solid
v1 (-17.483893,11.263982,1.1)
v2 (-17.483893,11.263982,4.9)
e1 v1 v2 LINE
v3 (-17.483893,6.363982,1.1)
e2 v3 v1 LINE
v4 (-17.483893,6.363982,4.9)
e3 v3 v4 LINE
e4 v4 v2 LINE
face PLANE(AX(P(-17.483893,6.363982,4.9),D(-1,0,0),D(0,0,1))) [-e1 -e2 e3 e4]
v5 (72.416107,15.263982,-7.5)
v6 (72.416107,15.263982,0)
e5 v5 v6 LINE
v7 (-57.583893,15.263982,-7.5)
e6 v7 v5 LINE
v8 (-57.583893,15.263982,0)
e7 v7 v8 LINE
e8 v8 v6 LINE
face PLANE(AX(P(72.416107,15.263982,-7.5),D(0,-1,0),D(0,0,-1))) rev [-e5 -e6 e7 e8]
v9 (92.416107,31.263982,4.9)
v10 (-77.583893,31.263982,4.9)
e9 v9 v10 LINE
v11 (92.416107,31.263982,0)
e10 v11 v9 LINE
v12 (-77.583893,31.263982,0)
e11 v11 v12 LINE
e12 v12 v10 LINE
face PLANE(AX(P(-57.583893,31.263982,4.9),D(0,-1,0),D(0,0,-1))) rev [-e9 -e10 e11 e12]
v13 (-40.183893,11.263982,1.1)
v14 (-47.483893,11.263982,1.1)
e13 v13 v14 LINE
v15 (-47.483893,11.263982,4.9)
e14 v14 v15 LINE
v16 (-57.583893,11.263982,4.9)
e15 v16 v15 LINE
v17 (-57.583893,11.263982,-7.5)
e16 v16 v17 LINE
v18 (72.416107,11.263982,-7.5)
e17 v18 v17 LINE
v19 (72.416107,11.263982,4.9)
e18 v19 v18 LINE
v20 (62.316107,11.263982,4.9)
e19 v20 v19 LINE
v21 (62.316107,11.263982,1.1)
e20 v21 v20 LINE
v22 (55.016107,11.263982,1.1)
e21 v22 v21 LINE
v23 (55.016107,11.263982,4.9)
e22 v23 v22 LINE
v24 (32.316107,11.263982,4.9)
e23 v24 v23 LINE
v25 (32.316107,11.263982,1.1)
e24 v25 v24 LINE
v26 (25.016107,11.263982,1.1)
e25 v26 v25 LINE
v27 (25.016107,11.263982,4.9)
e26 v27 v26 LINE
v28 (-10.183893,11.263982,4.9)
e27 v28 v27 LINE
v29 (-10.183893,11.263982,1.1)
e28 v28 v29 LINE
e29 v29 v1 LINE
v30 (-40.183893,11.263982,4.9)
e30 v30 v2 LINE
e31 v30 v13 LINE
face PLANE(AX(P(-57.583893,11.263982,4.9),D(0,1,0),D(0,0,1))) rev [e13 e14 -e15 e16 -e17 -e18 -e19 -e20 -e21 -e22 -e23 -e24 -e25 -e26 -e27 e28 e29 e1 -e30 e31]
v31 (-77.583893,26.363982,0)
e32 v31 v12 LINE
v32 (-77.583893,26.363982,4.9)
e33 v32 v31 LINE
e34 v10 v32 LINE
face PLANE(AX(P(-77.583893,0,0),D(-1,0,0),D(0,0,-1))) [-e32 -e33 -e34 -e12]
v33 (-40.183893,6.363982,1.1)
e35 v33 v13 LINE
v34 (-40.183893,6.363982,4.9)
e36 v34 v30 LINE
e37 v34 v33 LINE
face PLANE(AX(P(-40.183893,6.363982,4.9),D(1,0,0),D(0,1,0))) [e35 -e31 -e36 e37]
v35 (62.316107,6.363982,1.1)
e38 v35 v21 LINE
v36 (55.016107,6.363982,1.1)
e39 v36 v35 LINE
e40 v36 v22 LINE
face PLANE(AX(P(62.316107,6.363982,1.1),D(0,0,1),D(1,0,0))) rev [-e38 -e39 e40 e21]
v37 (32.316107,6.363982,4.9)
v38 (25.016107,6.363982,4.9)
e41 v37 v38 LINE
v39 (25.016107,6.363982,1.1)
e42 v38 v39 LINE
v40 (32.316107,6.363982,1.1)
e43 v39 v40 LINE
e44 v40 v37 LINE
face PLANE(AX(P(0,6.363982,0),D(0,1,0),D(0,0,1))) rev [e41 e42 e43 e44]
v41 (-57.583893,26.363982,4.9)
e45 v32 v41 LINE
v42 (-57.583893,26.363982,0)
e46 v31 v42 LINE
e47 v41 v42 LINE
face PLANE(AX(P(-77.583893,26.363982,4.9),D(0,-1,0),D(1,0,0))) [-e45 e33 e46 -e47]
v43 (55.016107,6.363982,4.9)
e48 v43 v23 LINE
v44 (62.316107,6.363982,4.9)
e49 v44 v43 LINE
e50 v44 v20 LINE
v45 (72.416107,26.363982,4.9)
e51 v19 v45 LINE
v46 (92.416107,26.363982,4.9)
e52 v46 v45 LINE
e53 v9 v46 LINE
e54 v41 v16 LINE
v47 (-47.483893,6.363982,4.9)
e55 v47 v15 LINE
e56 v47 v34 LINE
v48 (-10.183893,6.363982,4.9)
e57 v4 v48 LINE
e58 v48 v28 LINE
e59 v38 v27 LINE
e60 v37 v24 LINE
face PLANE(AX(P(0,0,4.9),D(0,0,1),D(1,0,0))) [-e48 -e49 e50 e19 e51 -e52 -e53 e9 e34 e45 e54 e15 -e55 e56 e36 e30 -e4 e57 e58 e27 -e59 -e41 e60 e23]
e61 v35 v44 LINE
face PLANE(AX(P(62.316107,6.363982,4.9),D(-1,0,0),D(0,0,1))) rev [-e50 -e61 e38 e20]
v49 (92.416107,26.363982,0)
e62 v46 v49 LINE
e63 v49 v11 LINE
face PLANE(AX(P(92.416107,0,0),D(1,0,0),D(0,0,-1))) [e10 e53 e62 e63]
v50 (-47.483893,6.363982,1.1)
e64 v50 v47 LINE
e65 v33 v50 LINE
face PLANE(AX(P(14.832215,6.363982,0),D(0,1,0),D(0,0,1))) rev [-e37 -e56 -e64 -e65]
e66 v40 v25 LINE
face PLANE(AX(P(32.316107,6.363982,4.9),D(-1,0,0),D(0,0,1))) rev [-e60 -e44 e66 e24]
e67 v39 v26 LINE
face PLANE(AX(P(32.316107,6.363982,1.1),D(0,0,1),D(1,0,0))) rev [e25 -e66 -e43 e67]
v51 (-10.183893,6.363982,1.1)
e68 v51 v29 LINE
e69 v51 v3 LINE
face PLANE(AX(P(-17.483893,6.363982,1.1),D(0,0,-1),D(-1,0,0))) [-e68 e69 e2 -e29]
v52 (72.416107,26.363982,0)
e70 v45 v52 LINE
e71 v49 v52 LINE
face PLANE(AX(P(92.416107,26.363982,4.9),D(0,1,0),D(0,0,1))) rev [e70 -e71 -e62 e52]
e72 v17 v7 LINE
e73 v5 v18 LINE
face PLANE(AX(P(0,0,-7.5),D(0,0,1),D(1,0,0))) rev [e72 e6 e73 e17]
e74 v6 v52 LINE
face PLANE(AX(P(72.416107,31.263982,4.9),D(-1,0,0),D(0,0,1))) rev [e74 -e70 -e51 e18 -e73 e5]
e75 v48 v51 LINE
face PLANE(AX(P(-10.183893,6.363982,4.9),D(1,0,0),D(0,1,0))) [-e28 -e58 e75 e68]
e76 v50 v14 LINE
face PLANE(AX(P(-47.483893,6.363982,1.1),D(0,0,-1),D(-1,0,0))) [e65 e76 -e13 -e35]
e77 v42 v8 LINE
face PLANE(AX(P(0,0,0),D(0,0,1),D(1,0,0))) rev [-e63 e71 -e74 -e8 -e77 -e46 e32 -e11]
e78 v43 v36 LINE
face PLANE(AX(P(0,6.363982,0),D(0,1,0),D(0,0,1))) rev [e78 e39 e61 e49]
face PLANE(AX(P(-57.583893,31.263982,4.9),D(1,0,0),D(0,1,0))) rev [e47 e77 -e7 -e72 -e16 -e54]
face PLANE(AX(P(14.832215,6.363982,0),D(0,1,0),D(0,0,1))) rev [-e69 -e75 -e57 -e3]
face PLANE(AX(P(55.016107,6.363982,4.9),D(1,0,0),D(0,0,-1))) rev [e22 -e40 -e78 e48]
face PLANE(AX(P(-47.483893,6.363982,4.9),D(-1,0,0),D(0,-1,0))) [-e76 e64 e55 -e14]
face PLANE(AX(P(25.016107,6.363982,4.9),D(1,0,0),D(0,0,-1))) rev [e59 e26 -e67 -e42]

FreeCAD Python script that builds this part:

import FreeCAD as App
import Part
import Sketcher

V = App.Vector
Q = App.Units.Quantity


def add_polygon(sketch, points):
    """Adds a closed chain of lines whose ends are joined by coincident constraints."""
    first, n = sketch.GeometryCount, len(points)
    for a, b in zip(points, points[1:] + points[:1]):
        sketch.addGeometry(Part.LineSegment(App.Vector(*a, 0), App.Vector(*b, 0)), False)
    for i in range(n):
        sketch.addConstraint(Sketcher.Constraint("Coincident", first + i, 2, first + (i + 1) % n, 1))

doc = App.newDocument("Part")
params = doc.addObject("Spreadsheet::Sheet", "Params")
for row, (alias, value) in enumerate([
    ("sketch1_width", "130 mm"),
    ("sketch1_height", "20 mm"),
    ("pad1_length", "4.9 mm"),
    ("sketch2_width", "4.9 mm"),
    ("pad2_length", "20 mm"),
    ("sketch3_width", "130 mm"),
    ("sketch3_height", "4 mm"),
    ("pad3_length", "7.5 mm"),
    ("sketch4_width", "7.3 mm"),
    ("sketch4_height", "3.8 mm"),
    ("pad4_length", "4.9 mm"),
    ("sketch5_width", "7.3 mm"),
    ("sketch5_height", "3.8 mm"),
    ("pad5_length", "4.9 mm"),
], start=1):
    params.set(f"A{row}", alias)
    params.set(f"B{row}", "=" + value)
    params.setAlias(f"B{row}", alias)

body = doc.addObject("PartDesign::Body", "Body")

# Sketch on XY plane
sketch1 = doc.addObject("Sketcher::SketchObject", "Sketch")
body.addObject(sketch1)
sketch1.AttachmentSupport = (doc.XY_Plane, [""])
sketch1.MapMode = "FlatFace"
add_polygon(sketch1, [(-57.583893, 31.263982), (-57.583893, 11.263982), (72.416107, 11.263982), (72.416107, 31.263982)])  # lines 0-3
sketch1.addConstraint(Sketcher.Constraint("Vertical", 0))
sketch1.addConstraint(Sketcher.Constraint("Horizontal", 1))
sketch1.addConstraint(Sketcher.Constraint("Vertical", 2))
sketch1.addConstraint(Sketcher.Constraint("Horizontal", 3))
sketch1.addConstraint(Sketcher.Constraint("DistanceX", 1, 1, 1, 2, Q("130 mm")))
sketch1.addConstraint(Sketcher.Constraint("DistanceY", 0, 2, 0, 1, Q("20 mm")))
sketch1.addConstraint(Sketcher.Constraint("DistanceX", 0, 2, -1, 1, Q("57.583893 mm")))
sketch1.addConstraint(Sketcher.Constraint("DistanceY", -1, 1, 0, 2, Q("11.263982 mm")))
sketch1.setExpression("Constraints[8]", "Params.sketch1_width")
sketch1.setExpression("Constraints[9]", "Params.sketch1_height")
pad1 = doc.addObject("PartDesign::Pad", "Pad")
body.addObject(pad1)
pad1.Profile = sketch1
pad1.setExpression("Length", "Params.pad1_length")

# Sketch on YZ plane
sketch2 = doc.addObject("Sketcher::SketchObject", "Sketch001")
body.addObject(sketch2)
sketch2.AttachmentSupport = (doc.YZ_Plane, [""])
sketch2.MapMode = "FlatFace"
sketch2.AttachmentOffset = App.Placement(V(0, 0, 72.416107), App.Rotation())
add_polygon(sketch2, [(31.263982, 4.9), (26.363982, 4.9), (26.363982, 0), (31.263982, 0)])  # lines 0-3
sketch2.addConstraint(Sketcher.Constraint("Horizontal", 0))
sketch2.addConstraint(Sketcher.Constraint("Vertical", 1))
sketch2.addConstraint(Sketcher.Constraint("Horizontal", 2))
sketch2.addConstraint(Sketcher.Constraint("Vertical", 3))
sketch2.addConstraint(Sketcher.Constraint("PointOnObject", 1, 2, -1))
sketch2.addConstraint(Sketcher.Constraint("Equal", 2, 1))
sketch2.addConstraint(Sketcher.Constraint("DistanceX", 0, 2, 0, 1, Q("4.9 mm")))
sketch2.addConstraint(Sketcher.Constraint("DistanceX", -1, 1, 0, 2, Q("26.363982 mm")))
sketch2.setExpression("Constraints[10]", "Params.sketch2_width")
pad2 = doc.addObject("PartDesign::Pad", "Pad001")
body.addObject(pad2)
pad2.Profile = sketch2
pad2.setExpression("Length", "Params.pad2_length")
doc.recompute()

datumplane = doc.addObject("PartDesign::Plane", "DatumPlane")
body.addObject(datumplane)
datumplane.AttachmentSupport = (doc.YZ_Plane, [""])
datumplane.MapMode = "FlatFace"
datumplane.AttachmentOffset = App.Placement(V(0, 0, 7.416107), App.Rotation())
mirrored = doc.addObject("PartDesign::Mirrored", "Mirrored")
body.addObject(mirrored)
mirrored.Originals = [pad2]
mirrored.MirrorPlane = (datumplane, [""])
body.Tip = mirrored

# Sketch on XY plane
sketch3 = doc.addObject("Sketcher::SketchObject", "Sketch002")
body.addObject(sketch3)
sketch3.AttachmentSupport = (doc.XY_Plane, [""])
sketch3.MapMode = "FlatFace"
add_polygon(sketch3, [(72.416107, 15.263982), (72.416107, 11.263982), (-57.583893, 11.263982), (-57.583893, 15.263982)])  # lines 0-3
sketch3.addConstraint(Sketcher.Constraint("Vertical", 0))
sketch3.addConstraint(Sketcher.Constraint("Horizontal", 1))
sketch3.addConstraint(Sketcher.Constraint("Vertical", 2))
sketch3.addConstraint(Sketcher.Constraint("Horizontal", 3))
sketch3.addConstraint(Sketcher.Constraint("DistanceX", 1, 2, 1, 1, Q("130 mm")))
sketch3.addConstraint(Sketcher.Constraint("DistanceY", 0, 2, 0, 1, Q("4 mm")))
sketch3.addConstraint(Sketcher.Constraint("DistanceX", -1, 1, 0, 2, Q("72.416107 mm")))
sketch3.addConstraint(Sketcher.Constraint("DistanceY", -1, 1, 0, 2, Q("11.263982 mm")))
sketch3.setExpression("Constraints[8]", "Params.sketch3_width")
sketch3.setExpression("Constraints[9]", "Params.sketch3_height")
pad3 = doc.addObject("PartDesign::Pad", "Pad002")
body.addObject(pad3)
pad3.Profile = sketch3
pad3.setExpression("Length", "Params.pad3_length")
pad3.Reversed = True

# Sketch on XZ plane
sketch4 = doc.addObject("Sketcher::SketchObject", "Sketch003")
body.addObject(sketch4)
sketch4.AttachmentSupport = (doc.XZ_Plane, [""])
sketch4.MapMode = "FlatFace"
sketch4.AttachmentOffset = App.Placement(V(0, 0, -11.263982), App.Rotation())
add_polygon(sketch4, [(25.016107, 4.9), (25.016107, 1.1), (32.316107, 1.1), (32.316107, 4.9)])  # lines 0-3
sketch4.addConstraint(Sketcher.Constraint("Vertical", 0))
sketch4.addConstraint(Sketcher.Constraint("Horizontal", 1))
sketch4.addConstraint(Sketcher.Constraint("Vertical", 2))
sketch4.addConstraint(Sketcher.Constraint("Horizontal", 3))
sketch4.addConstraint(Sketcher.Constraint("DistanceX", 1, 1, 1, 2, Q("7.3 mm")))
sketch4.addConstraint(Sketcher.Constraint("DistanceY", 0, 2, 0, 1, Q("3.8 mm")))
sketch4.addConstraint(Sketcher.Constraint("DistanceY", -1, 1, 0, 2, Q("1.1 mm")))
sketch4.addConstraint(Sketcher.Constraint("DistanceX", -1, 1, 0, 2, Q("25.016107 mm")))
sketch4.setExpression("Constraints[8]", "Params.sketch4_width")
sketch4.setExpression("Constraints[9]", "Params.sketch4_height")
pad4 = doc.addObject("PartDesign::Pad", "Pad003")
body.addObject(pad4)
pad4.Profile = sketch4
pad4.setExpression("Length", "Params.pad4_length")
doc.recompute()

datumplane2 = doc.addObject("PartDesign::Plane", "DatumPlane001")
body.addObject(datumplane2)
datumplane2.AttachmentSupport = (doc.YZ_Plane, [""])
datumplane2.MapMode = "FlatFace"
datumplane2.AttachmentOffset = App.Placement(V(0, 0, 7.416107), App.Rotation())
mirrored2 = doc.addObject("PartDesign::Mirrored", "Mirrored001")
body.addObject(mirrored2)
mirrored2.Originals = [pad4]
mirrored2.MirrorPlane = (datumplane2, [""])
body.Tip = mirrored2

# Sketch on XZ plane
sketch5 = doc.addObject("Sketcher::SketchObject", "Sketch004")
body.addObject(sketch5)
sketch5.AttachmentSupport = (doc.XZ_Plane, [""])
sketch5.MapMode = "FlatFace"
sketch5.AttachmentOffset = App.Placement(V(0, 0, -11.263982), App.Rotation())
add_polygon(sketch5, [(55.016107, 4.9), (55.016107, 1.1), (62.316107, 1.1), (62.316107, 4.9)])  # lines 0-3
sketch5.addConstraint(Sketcher.Constraint("Vertical", 0))
sketch5.addConstraint(Sketcher.Constraint("Horizontal", 1))
sketch5.addConstraint(Sketcher.Constraint("Vertical", 2))
sketch5.addConstraint(Sketcher.Constraint("Horizontal", 3))
sketch5.addConstraint(Sketcher.Constraint("DistanceX", 1, 1, 1, 2, Q("7.3 mm")))
sketch5.addConstraint(Sketcher.Constraint("DistanceY", 0, 2, 0, 1, Q("3.8 mm")))
sketch5.addConstraint(Sketcher.Constraint("DistanceY", -1, 1, 0, 2, Q("1.1 mm")))
sketch5.addConstraint(Sketcher.Constraint("DistanceX", -1, 1, 0, 2, Q("55.016107 mm")))
sketch5.setExpression("Constraints[8]", "Params.sketch5_width")
sketch5.setExpression("Constraints[9]", "Params.sketch5_height")
pad5 = doc.addObject("PartDesign::Pad", "Pad004")
body.addObject(pad5)
pad5.Profile = sketch5
pad5.setExpression("Length", "Params.pad5_length")
doc.recompute()

datumplane3 = doc.addObject("PartDesign::Plane", "DatumPlane002")
body.addObject(datumplane3)
datumplane3.AttachmentSupport = (doc.YZ_Plane, [""])
datumplane3.MapMode = "FlatFace"
datumplane3.AttachmentOffset = App.Placement(V(0, 0, 7.416107), App.Rotation())
mirrored3 = doc.addObject("PartDesign::Mirrored", "Mirrored002")
body.addObject(mirrored3)
mirrored3.Originals = [pad5]
mirrored3.MirrorPlane = (datumplane3, [""])
body.Tip = mirrored3

doc.recompute()
